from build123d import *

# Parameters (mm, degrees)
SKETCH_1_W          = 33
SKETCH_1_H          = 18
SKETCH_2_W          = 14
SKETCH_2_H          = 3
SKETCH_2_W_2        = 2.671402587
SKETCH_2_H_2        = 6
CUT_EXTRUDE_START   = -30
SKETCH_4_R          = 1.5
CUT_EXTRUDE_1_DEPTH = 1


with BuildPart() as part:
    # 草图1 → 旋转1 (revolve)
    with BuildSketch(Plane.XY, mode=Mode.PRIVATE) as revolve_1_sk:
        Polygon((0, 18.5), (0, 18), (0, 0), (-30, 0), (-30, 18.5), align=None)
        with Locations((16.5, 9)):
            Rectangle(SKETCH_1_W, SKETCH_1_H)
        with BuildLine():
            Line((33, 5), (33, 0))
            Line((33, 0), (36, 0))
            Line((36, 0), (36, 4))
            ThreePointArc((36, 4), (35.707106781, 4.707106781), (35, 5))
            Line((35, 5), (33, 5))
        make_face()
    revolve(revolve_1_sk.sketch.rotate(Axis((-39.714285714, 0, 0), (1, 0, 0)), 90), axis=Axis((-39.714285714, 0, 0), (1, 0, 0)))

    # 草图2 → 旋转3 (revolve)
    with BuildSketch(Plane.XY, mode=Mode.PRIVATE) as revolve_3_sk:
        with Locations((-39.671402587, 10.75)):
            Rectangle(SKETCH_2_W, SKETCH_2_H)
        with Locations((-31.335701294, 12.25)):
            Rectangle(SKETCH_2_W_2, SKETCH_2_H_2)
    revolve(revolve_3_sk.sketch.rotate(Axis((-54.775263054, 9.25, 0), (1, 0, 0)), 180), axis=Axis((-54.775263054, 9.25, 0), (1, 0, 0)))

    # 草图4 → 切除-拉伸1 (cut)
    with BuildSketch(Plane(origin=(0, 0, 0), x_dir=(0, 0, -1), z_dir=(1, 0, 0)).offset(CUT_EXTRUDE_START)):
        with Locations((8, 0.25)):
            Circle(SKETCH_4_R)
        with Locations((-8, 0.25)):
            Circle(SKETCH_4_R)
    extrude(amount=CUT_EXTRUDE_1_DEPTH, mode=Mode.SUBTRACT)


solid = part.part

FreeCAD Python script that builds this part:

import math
import FreeCAD as App
import Part
import Sketcher

V = App.Vector


def add_polygon(sketch, points):
    """Adds a closed chain of lines whose ends are joined by coincident constraints."""
    first, n = sketch.GeometryCount, len(points)
    for a, b in zip(points, points[1:] + points[:1]):
        sketch.addGeometry(Part.LineSegment(App.Vector(*a, 0), App.Vector(*b, 0)), False)
    for i in range(n):
        sketch.addConstraint(Sketcher.Constraint("Coincident", first + i, 2, first + (i + 1) % n, 1))

doc = App.newDocument("Part")
body = doc.addObject("PartDesign::Body", "Body")

sketch1 = body.newObject("Sketcher::SketchObject", "Sketch")
sketch1.AttachmentSupport = (doc.getObject("XY_Plane"), [""])
sketch1.MapMode = "FlatFace"
sketch1.addGeometry([
    Part.LineSegment(V(0, 18, 0), V(0, 18.5, 0)),
    Part.LineSegment(V(0, 18.5, 0), V(-30, 18.5, 0)),
    Part.LineSegment(V(-30, 18.5, 0), V(-30, 0, 0)),
    Part.LineSegment(V(-30, 0, 0), V(36, 0, 0)),
    Part.LineSegment(V(36, 0, 0), V(36, 4, 0)),
    Part.ArcOfCircle(Part.Circle(V(35, 4, 0), V(0, 0, 1), 1), math.radians(0), math.radians(90)),
    Part.LineSegment(V(35, 5, 0), V(33, 5, 0)),
    Part.LineSegment(V(33, 5, 0), V(33, 18, 0)),
    Part.LineSegment(V(33, 18, 0), V(0, 18, 0)),
], False)
sketch1.addConstraint([
    Sketcher.Constraint("Coincident", 0, 2, 1, 1),
    Sketcher.Constraint("Coincident", 1, 2, 2, 1),
    Sketcher.Constraint("Coincident", 2, 2, 3, 1),
    Sketcher.Constraint("Coincident", 3, 2, 4, 1),
    Sketcher.Constraint("Tangent", 4, 2, 5, 1),
    Sketcher.Constraint("Tangent", 5, 2, 6, 1),
    Sketcher.Constraint("Coincident", 6, 2, 7, 1),
    Sketcher.Constraint("Coincident", 7, 2, 8, 1),
    Sketcher.Constraint("Coincident", 8, 2, 0, 1),
    Sketcher.Constraint("Vertical", 0),
    Sketcher.Constraint("Horizontal", 1),
    Sketcher.Constraint("Vertical", 2),
    Sketcher.Constraint("Horizontal", 3),
    Sketcher.Constraint("Vertical", 4),
    Sketcher.Constraint("Horizontal", 6),
    Sketcher.Constraint("Vertical", 7),
    Sketcher.Constraint("Horizontal", 8),
    Sketcher.Constraint("PointOnObject", 0, 2, -2),
    Sketcher.Constraint("PointOnObject", 2, 2, -1),
    Sketcher.Constraint("Radius", 5, 1.0),
    Sketcher.Constraint("DistanceX", 1, 2, 1, 1, 30.0),
    Sketcher.Constraint("DistanceX", 3, 1, 3, 2, 66.0),
    Sketcher.Constraint("DistanceX", 6, 2, 6, 1, 2.0),
    Sketcher.Constraint("DistanceY", 4, 1, 4, 2, 4.0),
    Sketcher.Constraint("DistanceY", 7, 1, 7, 2, 13.0),
    Sketcher.Constraint("DistanceY", 0, 1, 0, 2, 0.5),
])
revolution = body.newObject("PartDesign::Revolution", "Revolution")
revolution.Profile = sketch1
revolution.ReferenceAxis = (sketch1, ["H_Axis"])
revolution.Angle = 360

sketch2 = body.newObject("Sketcher::SketchObject", "Sketch001")
sketch2.AttachmentSupport = (doc.getObject("XY_Plane"), [""])
sketch2.MapMode = "FlatFace"
add_polygon(sketch2, [(-46.7, 12.2), (-46.7, 9.2), (-30, 9.2), (-30, 15.2), (-32.7, 15.2), (-32.7, 12.2)])
sketch2.addGeometry(Part.LineSegment(V(-46.7, 9.2, 0), V(-30, 9.2, 0)), True)
sketch2.addConstraint([
    Sketcher.Constraint("Vertical", 0),
    Sketcher.Constraint("Horizontal", 1),
    Sketcher.Constraint("Vertical", 2),
    Sketcher.Constraint("Horizontal", 3),
    Sketcher.Constraint("Vertical", 4),
    Sketcher.Constraint("Horizontal", 5),
    Sketcher.Constraint("Horizontal", 6),
    Sketcher.Constraint("Coincident", 6, 1, 0, 2),
    Sketcher.Constraint("Vertical", 2, 2, 6, 2),
    Sketcher.Constraint("Equal", 0, 4),
    Sketcher.Constraint("DistanceX", 5, 2, 5, 1, 14.0),
    Sketcher.Constraint("DistanceY", 0, 2, 0, 1, 3.0),
    Sketcher.Constraint("DistanceX", 1, 2, -1, 1, 30.0),
    Sketcher.Constraint("DistanceY", -1, 1, 0, 2, 9.25),
    Sketcher.Constraint("DistanceX", 1, 1, 1, 2, 16.671403),
])
revolution2 = body.newObject("PartDesign::Revolution", "Revolution001")
revolution2.Profile = sketch2
revolution2.ReferenceAxis = (sketch2, ["Axis0"])
revolution2.Angle = 360

sketch3 = body.newObject("Sketcher::SketchObject", "Sketch002")
sketch3.AttachmentSupport = (doc.getObject("YZ_Plane"), [""])
sketch3.MapMode = "FlatFace"
sketch3.AttachmentOffset = App.Placement(V(0, 0, -30), App.Rotation())
sketch3.addGeometry([
    Part.Circle(V(0.2, -8, 0), V(0, 0, 1), 1.5),
    Part.Circle(V(0.2, 8, 0), V(0, 0, 1), 1.5),
], False)
sketch3.addConstraint([
    Sketcher.Constraint("Equal", 0, 1),
    Sketcher.Constraint("Symmetric", 0, 3, 1, 3, -1),
    Sketcher.Constraint("Diameter", 0, 3.0),
    Sketcher.Constraint("DistanceY", 0, 3, -1, 1, 8.0),
    Sketcher.Constraint("DistanceX", -1, 1, 0, 3, 0.25),
])
pocket1 = body.newObject("PartDesign::Pocket", "Pocket")
pocket1.Profile = sketch3
pocket1.Length = 1
pocket1.Reversed = True

doc.recompute()
